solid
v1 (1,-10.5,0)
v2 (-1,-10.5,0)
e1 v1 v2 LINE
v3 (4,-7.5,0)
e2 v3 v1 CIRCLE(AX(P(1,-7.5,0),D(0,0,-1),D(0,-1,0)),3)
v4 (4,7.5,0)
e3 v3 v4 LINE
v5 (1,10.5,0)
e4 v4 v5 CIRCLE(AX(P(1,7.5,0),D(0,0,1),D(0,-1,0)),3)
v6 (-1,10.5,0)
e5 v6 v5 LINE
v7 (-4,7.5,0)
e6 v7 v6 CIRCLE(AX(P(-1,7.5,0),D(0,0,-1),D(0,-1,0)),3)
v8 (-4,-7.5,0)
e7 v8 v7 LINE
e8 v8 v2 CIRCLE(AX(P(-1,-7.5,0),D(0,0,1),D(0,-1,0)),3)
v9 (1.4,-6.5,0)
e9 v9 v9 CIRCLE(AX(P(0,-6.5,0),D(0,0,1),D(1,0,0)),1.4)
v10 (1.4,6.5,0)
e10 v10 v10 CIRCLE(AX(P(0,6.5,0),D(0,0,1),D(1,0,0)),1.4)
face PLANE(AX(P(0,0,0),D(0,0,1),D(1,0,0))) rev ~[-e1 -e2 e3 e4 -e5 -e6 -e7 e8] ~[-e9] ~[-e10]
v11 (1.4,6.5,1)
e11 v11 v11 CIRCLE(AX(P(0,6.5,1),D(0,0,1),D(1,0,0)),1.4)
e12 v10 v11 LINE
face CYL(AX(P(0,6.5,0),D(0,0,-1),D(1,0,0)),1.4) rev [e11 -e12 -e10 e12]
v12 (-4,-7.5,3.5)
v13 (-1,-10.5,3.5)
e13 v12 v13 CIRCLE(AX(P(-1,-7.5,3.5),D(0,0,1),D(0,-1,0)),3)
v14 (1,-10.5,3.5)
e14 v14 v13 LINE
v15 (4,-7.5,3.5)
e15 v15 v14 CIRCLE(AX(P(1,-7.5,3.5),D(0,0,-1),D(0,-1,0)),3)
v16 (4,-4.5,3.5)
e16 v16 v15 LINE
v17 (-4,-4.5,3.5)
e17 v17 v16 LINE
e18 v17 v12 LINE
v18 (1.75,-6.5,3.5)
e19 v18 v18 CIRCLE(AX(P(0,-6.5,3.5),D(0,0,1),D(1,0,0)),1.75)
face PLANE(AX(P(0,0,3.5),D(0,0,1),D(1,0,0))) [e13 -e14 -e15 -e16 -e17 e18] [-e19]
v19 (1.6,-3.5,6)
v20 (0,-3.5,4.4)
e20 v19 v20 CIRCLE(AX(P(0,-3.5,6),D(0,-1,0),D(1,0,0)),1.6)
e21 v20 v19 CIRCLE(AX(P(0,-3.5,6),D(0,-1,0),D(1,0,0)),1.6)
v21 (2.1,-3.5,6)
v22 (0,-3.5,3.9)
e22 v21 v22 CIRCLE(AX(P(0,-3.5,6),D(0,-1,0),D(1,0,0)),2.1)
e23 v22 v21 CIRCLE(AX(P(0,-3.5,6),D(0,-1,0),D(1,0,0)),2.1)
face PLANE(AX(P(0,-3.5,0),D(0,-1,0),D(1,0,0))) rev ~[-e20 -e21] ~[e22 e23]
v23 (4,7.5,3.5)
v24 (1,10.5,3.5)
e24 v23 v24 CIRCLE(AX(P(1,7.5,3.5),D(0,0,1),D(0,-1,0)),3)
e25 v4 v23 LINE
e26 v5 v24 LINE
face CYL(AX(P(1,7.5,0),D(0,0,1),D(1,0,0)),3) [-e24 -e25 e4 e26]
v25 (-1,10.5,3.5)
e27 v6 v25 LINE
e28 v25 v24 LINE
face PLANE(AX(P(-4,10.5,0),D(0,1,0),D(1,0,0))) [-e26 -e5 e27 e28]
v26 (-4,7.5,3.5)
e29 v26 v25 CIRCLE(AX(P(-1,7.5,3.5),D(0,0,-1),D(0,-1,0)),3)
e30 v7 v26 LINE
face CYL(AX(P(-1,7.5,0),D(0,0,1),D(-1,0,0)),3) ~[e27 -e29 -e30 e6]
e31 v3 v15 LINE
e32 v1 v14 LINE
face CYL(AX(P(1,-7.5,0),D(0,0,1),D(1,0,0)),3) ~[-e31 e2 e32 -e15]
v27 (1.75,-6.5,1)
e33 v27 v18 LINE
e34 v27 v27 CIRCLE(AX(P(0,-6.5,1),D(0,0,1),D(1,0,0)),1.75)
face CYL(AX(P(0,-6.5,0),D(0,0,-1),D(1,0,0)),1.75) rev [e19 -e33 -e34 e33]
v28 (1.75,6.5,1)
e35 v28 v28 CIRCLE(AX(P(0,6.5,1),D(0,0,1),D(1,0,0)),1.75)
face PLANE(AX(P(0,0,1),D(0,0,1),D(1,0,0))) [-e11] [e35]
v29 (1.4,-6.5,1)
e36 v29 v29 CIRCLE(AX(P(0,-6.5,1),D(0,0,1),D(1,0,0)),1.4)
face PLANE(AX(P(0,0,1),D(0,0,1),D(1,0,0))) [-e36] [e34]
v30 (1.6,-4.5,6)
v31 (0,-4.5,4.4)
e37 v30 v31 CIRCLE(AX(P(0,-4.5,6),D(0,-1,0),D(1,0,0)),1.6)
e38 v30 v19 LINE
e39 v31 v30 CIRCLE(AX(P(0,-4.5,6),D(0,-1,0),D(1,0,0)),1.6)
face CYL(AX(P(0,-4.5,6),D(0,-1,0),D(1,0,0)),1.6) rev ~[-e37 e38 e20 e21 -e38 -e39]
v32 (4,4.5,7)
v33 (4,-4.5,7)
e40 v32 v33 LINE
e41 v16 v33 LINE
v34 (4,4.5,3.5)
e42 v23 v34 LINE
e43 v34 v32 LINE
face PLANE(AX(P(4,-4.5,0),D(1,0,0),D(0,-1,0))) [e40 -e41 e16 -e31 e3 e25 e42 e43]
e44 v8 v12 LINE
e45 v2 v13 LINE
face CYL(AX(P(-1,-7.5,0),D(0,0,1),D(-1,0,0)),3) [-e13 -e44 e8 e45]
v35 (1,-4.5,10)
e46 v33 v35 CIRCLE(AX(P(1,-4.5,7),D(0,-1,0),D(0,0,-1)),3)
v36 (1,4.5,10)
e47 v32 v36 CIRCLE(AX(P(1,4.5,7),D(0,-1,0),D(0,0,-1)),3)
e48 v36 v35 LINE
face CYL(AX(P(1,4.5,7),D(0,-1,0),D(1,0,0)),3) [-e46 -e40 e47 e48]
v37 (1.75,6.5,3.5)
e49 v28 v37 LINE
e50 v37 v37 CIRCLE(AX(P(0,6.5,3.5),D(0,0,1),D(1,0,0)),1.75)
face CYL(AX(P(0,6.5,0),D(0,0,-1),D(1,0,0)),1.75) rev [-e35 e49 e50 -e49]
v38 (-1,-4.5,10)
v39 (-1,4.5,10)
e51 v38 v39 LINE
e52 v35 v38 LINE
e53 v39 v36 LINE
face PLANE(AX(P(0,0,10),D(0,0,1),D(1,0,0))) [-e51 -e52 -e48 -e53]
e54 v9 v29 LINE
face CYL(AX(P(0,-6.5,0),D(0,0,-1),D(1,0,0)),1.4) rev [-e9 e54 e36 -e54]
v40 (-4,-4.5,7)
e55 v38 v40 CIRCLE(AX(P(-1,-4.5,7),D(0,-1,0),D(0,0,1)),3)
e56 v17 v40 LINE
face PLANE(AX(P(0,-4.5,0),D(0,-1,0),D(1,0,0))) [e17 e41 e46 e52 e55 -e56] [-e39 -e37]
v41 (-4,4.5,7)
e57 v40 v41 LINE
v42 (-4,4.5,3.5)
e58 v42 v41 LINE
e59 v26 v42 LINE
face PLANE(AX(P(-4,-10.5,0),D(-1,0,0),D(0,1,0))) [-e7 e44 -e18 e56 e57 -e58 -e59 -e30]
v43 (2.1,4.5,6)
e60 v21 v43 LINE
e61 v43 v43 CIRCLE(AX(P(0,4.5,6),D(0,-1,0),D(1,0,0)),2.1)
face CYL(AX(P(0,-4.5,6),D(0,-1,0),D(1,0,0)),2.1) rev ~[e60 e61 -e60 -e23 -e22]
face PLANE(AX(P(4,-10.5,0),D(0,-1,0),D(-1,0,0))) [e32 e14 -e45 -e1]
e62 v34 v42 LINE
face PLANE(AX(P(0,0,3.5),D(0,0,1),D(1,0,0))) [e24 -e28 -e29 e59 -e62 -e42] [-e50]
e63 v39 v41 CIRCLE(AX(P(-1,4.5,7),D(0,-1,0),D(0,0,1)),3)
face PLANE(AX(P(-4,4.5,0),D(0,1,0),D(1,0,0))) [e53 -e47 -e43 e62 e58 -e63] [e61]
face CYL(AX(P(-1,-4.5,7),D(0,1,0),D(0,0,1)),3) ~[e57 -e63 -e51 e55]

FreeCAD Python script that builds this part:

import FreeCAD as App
import Part
import Sketcher

V = App.Vector
Q = App.Units.Quantity


def edges_at(feature, points):
    """Names of the edges that pass closest to the given points."""
    edges = feature.Shape.Edges
    near = lambda p: min(range(len(edges)), key=lambda i: edges[i].distToShape(Part.Vertex(*p))[0])
    return sorted({f"Edge{near(p) + 1}" for p in points})


def add_polygon(sketch, points):
    """Adds a closed chain of lines whose ends are joined by coincident constraints."""
    first, n = sketch.GeometryCount, len(points)
    for a, b in zip(points, points[1:] + points[:1]):
        sketch.addGeometry(Part.LineSegment(App.Vector(*a, 0), App.Vector(*b, 0)), False)
    for i in range(n):
        sketch.addConstraint(Sketcher.Constraint("Coincident", first + i, 2, first + (i + 1) % n, 1))

doc = App.newDocument("Part")
params = doc.addObject("Spreadsheet::Sheet", "Params")
for row, (alias, value) in enumerate([
    ("sketch1_diameter", "3.5 mm"),
    ("pad1_length", "3.5 mm"),
    ("sketch2_diameter", "3.5 mm"),
    ("sketch2_diameter2", "2.8 mm"),
    ("pad2_length", "1 mm"),
    ("sketch3_height", "9 mm"),
    ("pad3_length", "10 mm"),
    ("sketch4_diameter", "4.2 mm"),
    ("pocket1_length", "14 mm"),
    ("fillet_radius", "3 mm"),
    ("sketch5_diameter", "4.2 mm"),
    ("sketch5_diameter2", "3.2 mm"),
    ("pad4_length", "1 mm"),
    ("fillet2_radius", "3 mm"),
], start=1):
    params.set(f"A{row}", alias)
    params.set(f"B{row}", "=" + value)
    params.setAlias(f"B{row}", alias)

body = doc.addObject("PartDesign::Body", "Body")

# Sketch on XY plane
sketch1 = body.newObject("Sketcher::SketchObject", "Sketch")
sketch1.AttachmentSupport = (doc.getObject("XY_Plane"), [""])
sketch1.MapMode = "FlatFace"
add_polygon(sketch1, [(4, -10.5), (4, 10.5), (-4, 10.5), (-4, -10.5)])  # lines 0-3
sketch1.addGeometry(Part.Circle(V(0, -6.5, 0), V(0, 0, 1), 1.75), False)  # 4
sketch1.addGeometry(Part.Circle(V(0, 6.5, 0), V(0, 0, 1), 1.75), False)  # 5
sketch1.addConstraint(Sketcher.Constraint("Vertical", 0))
sketch1.addConstraint(Sketcher.Constraint("Horizontal", 1))
sketch1.addConstraint(Sketcher.Constraint("Vertical", 2))
sketch1.addConstraint(Sketcher.Constraint("Horizontal", 3))
sketch1.addConstraint(Sketcher.Constraint("Equal", 4, 5))
sketch1.addConstraint(Sketcher.Constraint("Symmetric", 4, 3, 5, 3, -1, 1))
sketch1.addConstraint(Sketcher.Constraint("Symmetric", 0, 2, 2, 2, -1, 1))
sketch1.addConstraint(Sketcher.Constraint("PointOnObject", 4, 3, -2))
sketch1.addConstraint(Sketcher.Constraint("Diameter", 4, Q("3.5 mm")))
sketch1.addConstraint(Sketcher.Constraint("DistanceX", -1, 1, 0, 2, Q("4 mm")))
sketch1.addConstraint(Sketcher.Constraint("DistanceY", 4, 3, 5, 3, Q("13 mm")))
sketch1.addConstraint(Sketcher.Constraint("DistanceY", 5, 3, 0, 2, Q("4 mm")))
sketch1.setExpression("Constraints[12]", "Params.sketch1_diameter")
pad1 = body.newObject("PartDesign::Pad", "Pad")
pad1.Profile = sketch1
pad1.setExpression("Length", "Params.pad1_length")

# Sketch on XY plane
sketch2 = body.newObject("Sketcher::SketchObject", "Sketch001")
sketch2.AttachmentSupport = (doc.getObject("XY_Plane"), [""])
sketch2.MapMode = "FlatFace"
sketch2.addGeometry(Part.Circle(V(0, 6.5, 0), V(0, 0, 1), 1.75), False)
sketch2.addGeometry(Part.Circle(V(0, 6.5, 0), V(0, 0, 1), 1.4), False)
sketch2.addGeometry(Part.Circle(V(0, -6.5, 0), V(0, 0, 1), 1.75), False)
sketch2.addGeometry(Part.Circle(V(0, -6.5, 0), V(0, 0, 1), 1.4), False)
sketch2.addConstraint(Sketcher.Constraint("Coincident", 1, 3, 0, 3))
sketch2.addConstraint(Sketcher.Constraint("Coincident", 3, 3, 2, 3))
sketch2.addConstraint(Sketcher.Constraint("Equal", 0, 2))
sketch2.addConstraint(Sketcher.Constraint("Equal", 1, 3))
sketch2.addConstraint(Sketcher.Constraint("Symmetric", 0, 3, 2, 3, -1, 1))
sketch2.addConstraint(Sketcher.Constraint("PointOnObject", 0, 3, -2))
sketch2.addConstraint(Sketcher.Constraint("Diameter", 0, Q("3.5 mm")))
sketch2.addConstraint(Sketcher.Constraint("Diameter", 1, Q("2.8 mm")))
sketch2.addConstraint(Sketcher.Constraint("DistanceY", 2, 3, 0, 3, Q("13 mm")))
sketch2.setExpression("Constraints[6]", "Params.sketch2_diameter")
sketch2.setExpression("Constraints[7]", "Params.sketch2_diameter2")
pad2 = body.newObject("PartDesign::Pad", "Pad001")
pad2.Profile = sketch2
pad2.setExpression("Length", "Params.pad2_length")

# Sketch on XY plane
sketch3 = body.newObject("Sketcher::SketchObject", "Sketch002")
sketch3.AttachmentSupport = (doc.getObject("XY_Plane"), [""])
sketch3.MapMode = "FlatFace"
add_polygon(sketch3, [(-4, -4.5), (4, -4.5), (4, 4.5), (-4, 4.5)])  # lines 0-3
sketch3.addConstraint(Sketcher.Constraint("Horizontal", 0))
sketch3.addConstraint(Sketcher.Constraint("Vertical", 1))
sketch3.addConstraint(Sketcher.Constraint("Horizontal", 2))
sketch3.addConstraint(Sketcher.Constraint("Vertical", 3))
sketch3.addConstraint(Sketcher.Constraint("Symmetric", 0, 2, 2, 2, -1, 1))
sketch3.addConstraint(Sketcher.Constraint("DistanceY", 1, 1, 1, 2, Q("9 mm")))
sketch3.addConstraint(Sketcher.Constraint("DistanceX", -1, 1, 0, 2, Q("4 mm")))
sketch3.setExpression("Constraints[9]", "Params.sketch3_height")
pad3 = body.newObject("PartDesign::Pad", "Pad002")
pad3.Profile = sketch3
pad3.setExpression("Length", "Params.pad3_length")

# Sketch on XZ plane
sketch4 = body.newObject("Sketcher::SketchObject", "Sketch003")
sketch4.AttachmentSupport = (doc.getObject("XZ_Plane"), [""])
sketch4.MapMode = "FlatFace"
sketch4.AttachmentOffset = App.Placement(V(0, 0, 4.5), App.Rotation())
sketch4.addGeometry(Part.Circle(V(0, 6, 0), V(0, 0, 1), 2.1), False)
sketch4.addConstraint(Sketcher.Constraint("PointOnObject", 0, 3, -2))
sketch4.addConstraint(Sketcher.Constraint("Diameter", 0, Q("4.2 mm")))
sketch4.addConstraint(Sketcher.Constraint("DistanceY", -1, 1, 0, 3, Q("6 mm")))
sketch4.setExpression("Constraints[1]", "Params.sketch4_diameter")
pocket1 = body.newObject("PartDesign::Pocket", "Pocket")
pocket1.Profile = sketch4
pocket1.setExpression("Length", "Params.pocket1_length")
doc.recompute()

fillet = body.newObject("PartDesign::Fillet", "Fillet")
fillet.Base = (pocket1, edges_at(pocket1, [(-4, 0, 10), (4, 0, 10)]))
fillet.setExpression("Radius", "Params.fillet_radius")

# Sketch on XZ plane
sketch5 = body.newObject("Sketcher::SketchObject", "Sketch004")
sketch5.AttachmentSupport = (doc.getObject("XZ_Plane"), [""])
sketch5.MapMode = "FlatFace"
sketch5.AttachmentOffset = App.Placement(V(0, 0, 4.5), App.Rotation())
sketch5.addGeometry(Part.Circle(V(0, 6, 0), V(0, 0, 1), 2.1), False)
sketch5.addGeometry(Part.Circle(V(0, 6, 0), V(0, 0, 1), 1.6), False)
sketch5.addConstraint(Sketcher.Constraint("Coincident", 1, 3, 0, 3))
sketch5.addConstraint(Sketcher.Constraint("PointOnObject", 0, 3, -2))
sketch5.addConstraint(Sketcher.Constraint("Diameter", 0, Q("4.2 mm")))
sketch5.addConstraint(Sketcher.Constraint("Diameter", 1, Q("3.2 mm")))
sketch5.addConstraint(Sketcher.Constraint("DistanceY", -1, 1, 0, 3, Q("6 mm")))
sketch5.setExpression("Constraints[2]", "Params.sketch5_diameter")
sketch5.setExpression("Constraints[3]", "Params.sketch5_diameter2")
pad4 = body.newObject("PartDesign::Pad", "Pad003")
pad4.Profile = sketch5
pad4.setExpression("Length", "Params.pad4_length")
pad4.Reversed = True
doc.recompute()

fillet2 = body.newObject("PartDesign::Fillet", "Fillet001")
fillet2.Base = (pad4, edges_at(pad4, [
    (4, -10.5, 1.75),
    (-4, -10.5, 1.75),
    (-4, 10.5, 1.75),
    (4, 10.5, 1.75),
]))
fillet2.setExpression("Radius", "Params.fillet2_radius")

doc.recompute()
